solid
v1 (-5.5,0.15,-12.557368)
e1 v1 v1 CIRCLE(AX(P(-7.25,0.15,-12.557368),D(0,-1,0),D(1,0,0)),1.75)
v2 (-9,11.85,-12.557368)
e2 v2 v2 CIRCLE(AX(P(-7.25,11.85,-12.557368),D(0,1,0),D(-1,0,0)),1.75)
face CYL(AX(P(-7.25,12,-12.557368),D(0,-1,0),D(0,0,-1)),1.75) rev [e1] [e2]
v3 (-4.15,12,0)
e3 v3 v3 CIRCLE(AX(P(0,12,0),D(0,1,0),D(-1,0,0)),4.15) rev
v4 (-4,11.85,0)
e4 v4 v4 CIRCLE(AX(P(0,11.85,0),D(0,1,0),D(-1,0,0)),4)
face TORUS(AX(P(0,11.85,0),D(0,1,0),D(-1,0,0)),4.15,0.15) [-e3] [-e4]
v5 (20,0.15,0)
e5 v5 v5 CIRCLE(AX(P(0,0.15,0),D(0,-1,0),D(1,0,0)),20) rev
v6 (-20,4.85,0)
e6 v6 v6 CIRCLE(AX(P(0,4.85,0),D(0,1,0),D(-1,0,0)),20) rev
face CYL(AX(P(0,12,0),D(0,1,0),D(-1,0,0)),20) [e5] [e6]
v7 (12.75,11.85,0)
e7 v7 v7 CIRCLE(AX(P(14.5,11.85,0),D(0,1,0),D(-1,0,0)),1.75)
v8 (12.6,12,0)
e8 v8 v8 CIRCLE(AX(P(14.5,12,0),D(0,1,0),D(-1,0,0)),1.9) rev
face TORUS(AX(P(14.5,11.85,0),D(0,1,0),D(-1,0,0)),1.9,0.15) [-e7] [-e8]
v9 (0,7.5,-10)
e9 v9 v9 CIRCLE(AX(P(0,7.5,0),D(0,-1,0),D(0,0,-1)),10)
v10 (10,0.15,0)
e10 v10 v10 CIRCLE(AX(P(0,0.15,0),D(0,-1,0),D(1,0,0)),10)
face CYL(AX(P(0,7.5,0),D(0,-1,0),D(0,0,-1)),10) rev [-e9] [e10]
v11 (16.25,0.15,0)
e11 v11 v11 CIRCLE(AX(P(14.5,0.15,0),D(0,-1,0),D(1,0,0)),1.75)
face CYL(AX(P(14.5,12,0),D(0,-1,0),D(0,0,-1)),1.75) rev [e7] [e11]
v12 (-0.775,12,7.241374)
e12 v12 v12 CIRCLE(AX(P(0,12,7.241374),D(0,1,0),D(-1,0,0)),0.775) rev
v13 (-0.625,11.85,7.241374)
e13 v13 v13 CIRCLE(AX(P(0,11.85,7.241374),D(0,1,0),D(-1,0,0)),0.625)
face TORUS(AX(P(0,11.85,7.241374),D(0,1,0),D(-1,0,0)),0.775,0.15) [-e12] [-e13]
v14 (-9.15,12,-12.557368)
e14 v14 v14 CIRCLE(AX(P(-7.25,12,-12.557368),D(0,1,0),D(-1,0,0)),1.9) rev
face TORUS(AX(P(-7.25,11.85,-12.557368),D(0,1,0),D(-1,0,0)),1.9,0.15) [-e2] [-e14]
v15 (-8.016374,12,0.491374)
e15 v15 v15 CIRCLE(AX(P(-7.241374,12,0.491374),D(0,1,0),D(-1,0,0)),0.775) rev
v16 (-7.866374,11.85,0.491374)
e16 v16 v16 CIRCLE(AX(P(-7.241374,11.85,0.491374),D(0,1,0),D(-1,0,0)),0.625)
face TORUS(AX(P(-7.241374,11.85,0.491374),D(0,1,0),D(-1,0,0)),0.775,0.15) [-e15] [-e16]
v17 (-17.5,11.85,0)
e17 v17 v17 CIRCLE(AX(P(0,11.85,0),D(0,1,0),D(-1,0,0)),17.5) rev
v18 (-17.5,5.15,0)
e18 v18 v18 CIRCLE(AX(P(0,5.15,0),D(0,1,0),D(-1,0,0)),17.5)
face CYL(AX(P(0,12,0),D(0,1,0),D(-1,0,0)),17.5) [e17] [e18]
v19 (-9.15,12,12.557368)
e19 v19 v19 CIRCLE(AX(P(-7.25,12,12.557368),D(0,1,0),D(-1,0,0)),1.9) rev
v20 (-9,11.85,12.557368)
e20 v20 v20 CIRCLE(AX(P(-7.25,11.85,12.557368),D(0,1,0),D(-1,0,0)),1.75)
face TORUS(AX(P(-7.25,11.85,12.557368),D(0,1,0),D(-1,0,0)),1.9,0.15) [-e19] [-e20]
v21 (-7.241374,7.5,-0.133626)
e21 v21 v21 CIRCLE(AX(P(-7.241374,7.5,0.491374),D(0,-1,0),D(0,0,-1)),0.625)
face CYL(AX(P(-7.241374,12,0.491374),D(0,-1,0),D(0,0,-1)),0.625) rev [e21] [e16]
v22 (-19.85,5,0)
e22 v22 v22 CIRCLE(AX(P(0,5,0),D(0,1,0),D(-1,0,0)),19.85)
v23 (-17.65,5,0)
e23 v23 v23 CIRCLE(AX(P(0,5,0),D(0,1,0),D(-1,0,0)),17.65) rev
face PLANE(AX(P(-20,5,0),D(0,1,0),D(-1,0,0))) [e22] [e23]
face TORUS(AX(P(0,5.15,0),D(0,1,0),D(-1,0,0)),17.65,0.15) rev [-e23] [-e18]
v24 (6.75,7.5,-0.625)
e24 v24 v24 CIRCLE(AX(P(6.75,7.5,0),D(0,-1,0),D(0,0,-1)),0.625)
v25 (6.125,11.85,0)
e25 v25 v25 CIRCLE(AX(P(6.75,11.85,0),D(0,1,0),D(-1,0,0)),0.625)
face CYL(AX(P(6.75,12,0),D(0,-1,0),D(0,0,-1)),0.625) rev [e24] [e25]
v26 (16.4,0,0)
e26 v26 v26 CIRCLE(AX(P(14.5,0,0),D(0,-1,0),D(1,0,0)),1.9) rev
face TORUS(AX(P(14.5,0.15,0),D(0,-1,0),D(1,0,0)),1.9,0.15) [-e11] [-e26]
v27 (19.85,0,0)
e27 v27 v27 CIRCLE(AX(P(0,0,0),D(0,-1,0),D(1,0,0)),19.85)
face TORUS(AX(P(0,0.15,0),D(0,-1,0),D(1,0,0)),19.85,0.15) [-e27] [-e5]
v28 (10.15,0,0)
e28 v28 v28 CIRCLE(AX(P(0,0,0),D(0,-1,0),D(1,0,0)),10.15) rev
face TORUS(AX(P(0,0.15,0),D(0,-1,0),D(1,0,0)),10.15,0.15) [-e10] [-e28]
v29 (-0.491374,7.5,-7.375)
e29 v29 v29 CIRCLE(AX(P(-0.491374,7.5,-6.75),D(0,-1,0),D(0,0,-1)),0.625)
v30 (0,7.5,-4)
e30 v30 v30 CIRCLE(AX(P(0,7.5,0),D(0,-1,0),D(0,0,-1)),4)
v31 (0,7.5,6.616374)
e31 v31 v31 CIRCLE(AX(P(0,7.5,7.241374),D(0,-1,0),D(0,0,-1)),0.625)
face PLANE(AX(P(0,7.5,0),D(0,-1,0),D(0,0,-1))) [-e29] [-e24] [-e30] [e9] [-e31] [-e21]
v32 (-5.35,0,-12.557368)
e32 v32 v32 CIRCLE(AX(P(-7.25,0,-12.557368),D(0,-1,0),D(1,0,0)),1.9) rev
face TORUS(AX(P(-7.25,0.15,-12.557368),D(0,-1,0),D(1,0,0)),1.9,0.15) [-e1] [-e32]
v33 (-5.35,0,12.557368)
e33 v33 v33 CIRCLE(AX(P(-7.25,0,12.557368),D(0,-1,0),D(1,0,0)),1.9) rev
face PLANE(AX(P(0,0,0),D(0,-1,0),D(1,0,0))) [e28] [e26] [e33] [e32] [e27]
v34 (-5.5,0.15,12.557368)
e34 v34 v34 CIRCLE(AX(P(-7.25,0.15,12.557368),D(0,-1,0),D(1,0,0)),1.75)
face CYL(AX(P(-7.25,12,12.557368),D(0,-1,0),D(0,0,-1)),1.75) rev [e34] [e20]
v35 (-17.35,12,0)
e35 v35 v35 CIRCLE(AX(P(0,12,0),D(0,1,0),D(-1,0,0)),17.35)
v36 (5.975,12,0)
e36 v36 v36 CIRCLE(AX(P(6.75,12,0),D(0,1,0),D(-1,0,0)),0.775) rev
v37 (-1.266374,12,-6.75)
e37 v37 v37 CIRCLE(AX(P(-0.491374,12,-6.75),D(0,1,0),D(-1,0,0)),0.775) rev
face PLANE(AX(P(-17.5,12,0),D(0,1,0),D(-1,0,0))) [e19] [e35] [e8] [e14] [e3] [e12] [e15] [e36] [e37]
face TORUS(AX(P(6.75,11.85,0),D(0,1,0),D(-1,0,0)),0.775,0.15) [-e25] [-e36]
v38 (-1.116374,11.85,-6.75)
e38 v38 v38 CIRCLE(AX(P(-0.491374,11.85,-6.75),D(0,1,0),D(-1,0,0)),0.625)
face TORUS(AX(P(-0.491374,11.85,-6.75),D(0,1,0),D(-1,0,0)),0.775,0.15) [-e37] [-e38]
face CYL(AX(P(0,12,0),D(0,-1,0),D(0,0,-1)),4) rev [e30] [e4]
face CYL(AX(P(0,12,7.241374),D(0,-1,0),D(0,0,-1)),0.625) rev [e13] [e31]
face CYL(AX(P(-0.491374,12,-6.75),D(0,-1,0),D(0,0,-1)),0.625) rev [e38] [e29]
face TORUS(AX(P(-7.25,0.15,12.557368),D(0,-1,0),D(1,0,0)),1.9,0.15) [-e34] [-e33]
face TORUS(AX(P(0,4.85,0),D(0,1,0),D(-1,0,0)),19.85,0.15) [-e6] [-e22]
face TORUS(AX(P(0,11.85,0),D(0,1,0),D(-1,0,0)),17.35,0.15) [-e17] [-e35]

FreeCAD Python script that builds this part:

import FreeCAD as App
import Part
import Sketcher
from FreeCAD import Vector
Q = App.Units.Quantity


def edges_at(feature, points):
    """Names of the edges that pass closest to the given points."""
    edges = feature.Shape.Edges
    near = lambda p: min(range(len(edges)), key=lambda i: edges[i].distToShape(Part.Vertex(*p))[0])
    return sorted({f"Edge{near(p) + 1}" for p in points})

doc = App.newDocument("Part")
params = doc.addObject("Spreadsheet::Sheet", "Params")
for row, (alias, value) in enumerate([
    ("sketch1_width", "20 mm"),
    ("sketch1_height", "12 mm"),
    ("sketch1_height2", "7 mm"),
    ("sketch1_width2", "17.5 mm"),
    ("revolution_angle", "360 deg"),
    ("sketch2_diameter", "8 mm"),
    ("sketch2_diameter2", "3.5 mm"),
    ("sketch2_diameter3", "1.25 mm"),
    ("sketch3_diameter", "20 mm"),
    ("sketch3_diameter2", "8 mm"),
    ("sketch3_diameter3", "3.5 mm"),
    ("sketch3_diameter4", "1.25 mm"),
    ("pocket2_length", "7.5 mm"),
    ("fillet_radius", "0.15 mm"),
], start=1):
    params.set(f"A{row}", alias)
    params.set(f"B{row}", "=" + value)
    params.setAlias(f"B{row}", alias)

body = doc.addObject("PartDesign::Body", "Body")

sketch1 = body.newObject("Sketcher::SketchObject", "Sketch")
sketch1.AttachmentSupport = (doc.getObject("XY_Plane"), [""])
sketch1.MapMode = "FlatFace"
sketch1.addGeometry([
    Part.LineSegment(Vector(-20, 0, 0), Vector(0, 0, 0)),
    Part.LineSegment(Vector(0, 0, 0), Vector(0, 12, 0)),
    Part.LineSegment(Vector(0, 12, 0), Vector(-17.5, 12, 0)),
    Part.LineSegment(Vector(-17.5, 12, 0), Vector(-17.5, 5, 0)),
    Part.LineSegment(Vector(-17.5, 5, 0), Vector(-20, 5, 0)),
    Part.LineSegment(Vector(-20, 5, 0), Vector(-20, 0, 0)),
], False)
sketch1.addConstraint([
    Sketcher.Constraint("Coincident", 0, 2, 1, 1),
    Sketcher.Constraint("Coincident", 1, 2, 2, 1),
    Sketcher.Constraint("Coincident", 2, 2, 3, 1),
    Sketcher.Constraint("Coincident", 3, 2, 4, 1),
    Sketcher.Constraint("Coincident", 4, 2, 5, 1),
    Sketcher.Constraint("Coincident", 5, 2, 0, 1),
    Sketcher.Constraint("Horizontal", 0),
    Sketcher.Constraint("Vertical", 1),
    Sketcher.Constraint("Horizontal", 2),
    Sketcher.Constraint("Vertical", 3),
    Sketcher.Constraint("Horizontal", 4),
    Sketcher.Constraint("Vertical", 5),
    Sketcher.Constraint("Coincident", 0, 2, -1, 1),
    Sketcher.Constraint("DistanceX", 0, 1, 0, 2, Q("20 mm")),
    Sketcher.Constraint("DistanceY", 1, 1, 1, 2, Q("12 mm")),
    Sketcher.Constraint("DistanceY", 3, 2, 3, 1, Q("7 mm")),
    Sketcher.Constraint("DistanceX", 2, 2, 2, 1, Q("17.5 mm")),
])
sketch1.setExpression("Constraints[13]", "Params.sketch1_width")
sketch1.setExpression("Constraints[14]", "Params.sketch1_height")
sketch1.setExpression("Constraints[15]", "Params.sketch1_height2")
sketch1.setExpression("Constraints[16]", "Params.sketch1_width2")
revolution = body.newObject("PartDesign::Revolution", "Revolution")
revolution.Profile = sketch1
revolution.ReferenceAxis = (sketch1, ["V_Axis"])
revolution.setExpression("Angle", "Params.revolution_angle")

sketch2 = body.newObject("Sketcher::SketchObject", "Sketch001")
sketch2.AttachmentSupport = (doc.getObject("XZ_Plane"), [""])
sketch2.MapMode = "FlatFace"
sketch2.addGeometry([
    Part.Circle(Vector(-7.2, 12.6, 0), Vector(0, 0, 1), 1.8),
    Part.Circle(Vector(-7.2, 0.5, 0), Vector(0, 0, 1), 0.6),
    Part.Circle(Vector(-0.5, -6.8, 0), Vector(0, 0, 1), 0.6),
    Part.Circle(Vector(14.5, 0, 0), Vector(0, 0, 1), 1.8),
    Part.Circle(Vector(0, 0, 0), Vector(0, 0, 1), 4),
    Part.Circle(Vector(-7.2, -12.6, 0), Vector(0, 0, 1), 1.8),
    Part.Circle(Vector(6.8, 0, 0), Vector(0, 0, 1), 0.6),
    Part.Circle(Vector(0, 7.2, 0), Vector(0, 0, 1), 0.6),
], False)
sketch2.addConstraint([
    Sketcher.Constraint("Coincident", 4, 3, -1, 1),
    Sketcher.Constraint("Equal", 1, 2),
    Sketcher.Constraint("Equal", 0, 3),
    Sketcher.Constraint("Equal", 3, 5),
    Sketcher.Constraint("Equal", 2, 6),
    Sketcher.Constraint("Equal", 6, 7),
    Sketcher.Constraint("Symmetric", 0, 3, 5, 3, -1),
    Sketcher.Constraint("PointOnObject", 3, 3, -1),
    Sketcher.Constraint("PointOnObject", 6, 3, -1),
    Sketcher.Constraint("PointOnObject", 7, 3, -2),
    Sketcher.Constraint("Diameter", 4, Q("8 mm")),
    Sketcher.Constraint("Diameter", 0, Q("3.5 mm")),
    Sketcher.Constraint("Diameter", 1, Q("1.25 mm")),
    Sketcher.Constraint("DistanceX", 0, 3, 6, 3, Q("14 mm")),
    Sketcher.Constraint("DistanceX", -1, 1, 3, 3, Q("14.5 mm")),
    Sketcher.Constraint("DistanceX", 0, 3, -1, 1, Q("7.25 mm")),
    Sketcher.Constraint("DistanceY", 2, 3, -1, 1, Q("6.75 mm")),
    Sketcher.Constraint("DistanceX", 1, 3, 2, 3, Q("6.75 mm")),
    Sketcher.Constraint("DistanceY", 1, 3, 7, 3, Q("6.75 mm")),
    Sketcher.Constraint("DistanceY", -1, 1, 0, 3, Q("12.557368 mm")),
    Sketcher.Constraint("DistanceX", 1, 3, -1, 1, Q("7.241374 mm")),
    Sketcher.Constraint("DistanceY", -1, 1, 1, 3, Q("0.491374 mm")),
])
sketch2.setExpression("Constraints[10]", "Params.sketch2_diameter")
sketch2.setExpression("Constraints[11]", "Params.sketch2_diameter2")
sketch2.setExpression("Constraints[12]", "Params.sketch2_diameter3")
pocket1 = body.newObject("PartDesign::Pocket", "Pocket")
pocket1.Profile = sketch2
pocket1.Type = "ThroughAll"

sketch3 = body.newObject("Sketcher::SketchObject", "Sketch002")
sketch3.AttachmentSupport = (doc.getObject("XZ_Plane"), [""])
sketch3.MapMode = "FlatFace"
sketch3.addGeometry([
    Part.Circle(Vector(0, 0, 0), Vector(0, 0, 1), 10),
    Part.Circle(Vector(-7.2, 0.5, 0), Vector(0, 0, 1), 0.6),
    Part.Circle(Vector(-0.5, -6.8, 0), Vector(0, 0, 1), 0.6),
    Part.Circle(Vector(0, 7.2, 0), Vector(0, 0, 1), 0.6),
    Part.Circle(Vector(0, 0, 0), Vector(0, 0, 1), 4),
    Part.Circle(Vector(6.8, 0, 0), Vector(0, 0, 1), 0.6),
    Part.Circle(Vector(14.5, 0, 0), Vector(0, 0, 1), 1.8),
    Part.Circle(Vector(-7.2, -12.6, 0), Vector(0, 0, 1), 1.8),
    Part.Circle(Vector(-7.2, 12.6, 0), Vector(0, 0, 1), 1.8),
], False)
sketch3.addConstraint([
    Sketcher.Constraint("Coincident", 0, 3, -1, 1),
    Sketcher.Constraint("Coincident", 4, 3, -1, 1),
    Sketcher.Constraint("Equal", 1, 2),
    Sketcher.Constraint("Equal", 2, 3),
    Sketcher.Constraint("Equal", 3, 5),
    Sketcher.Constraint("Equal", 6, 7),
    Sketcher.Constraint("Equal", 7, 8),
    Sketcher.Constraint("Symmetric", 7, 3, 8, 3, -1),
    Sketcher.Constraint("PointOnObject", 3, 3, -2),
    Sketcher.Constraint("PointOnObject", 5, 3, -1),
    Sketcher.Constraint("PointOnObject", 6, 3, -1),
    Sketcher.Constraint("Diameter", 0, Q("20 mm")),
    Sketcher.Constraint("Diameter", 4, Q("8 mm")),
    Sketcher.Constraint("Diameter", 6, Q("3.5 mm")),
    Sketcher.Constraint("Diameter", 1, Q("1.25 mm")),
    Sketcher.Constraint("DistanceX", 7, 3, 5, 3, Q("14 mm")),
    Sketcher.Constraint("DistanceX", -1, 1, 6, 3, Q("14.5 mm")),
    Sketcher.Constraint("DistanceY", 2, 3, -1, 1, Q("6.75 mm")),
    Sketcher.Constraint("DistanceX", -1, 1, 5, 3, Q("6.75 mm")),
    Sketcher.Constraint("DistanceX", 1, 3, 2, 3, Q("6.75 mm")),
    Sketcher.Constraint("DistanceY", 1, 3, 3, 3, Q("6.75 mm")),
    Sketcher.Constraint("DistanceY", 7, 3, -1, 1, Q("12.557368 mm")),
    Sketcher.Constraint("DistanceX", 1, 3, -1, 1, Q("7.241374 mm")),
    Sketcher.Constraint("DistanceY", -1, 1, 1, 3, Q("0.491374 mm")),
])
sketch3.setExpression("Constraints[11]", "Params.sketch3_diameter")
sketch3.setExpression("Constraints[12]", "Params.sketch3_diameter2")
sketch3.setExpression("Constraints[13]", "Params.sketch3_diameter3")
sketch3.setExpression("Constraints[14]", "Params.sketch3_diameter4")
pocket2 = body.newObject("PartDesign::Pocket", "Pocket001")
pocket2.Profile = sketch3
pocket2.setExpression("Length", "Params.pocket2_length")
doc.recompute()

fillet = body.newObject("PartDesign::Fillet", "Fillet")
fillet.Base = (pocket2, edges_at(pocket2, [
    (-7.25, 12, 14.307),
    (-7.25, 0, 14.307),
    (-7.241, 12, 1.116),
    (-0.491, 12, -6.125),
    (14.5, 12, 1.75),
    (14.5, 0, 1.75),
    (0, 12, 4),
    (-7.25, 12, -10.807),
    (-7.25, 0, -10.807),
    (6.75, 12, 0.625),
    (0, 12, 7.866),
    (17.5, 12, 0),
    (0, 0, 10),
    (17.5, 5, 0),
    (20, 5, 0),
    (20, 0, 0),
]))
fillet.setExpression("Radius", "Params.fillet_radius")

doc.recompute()
